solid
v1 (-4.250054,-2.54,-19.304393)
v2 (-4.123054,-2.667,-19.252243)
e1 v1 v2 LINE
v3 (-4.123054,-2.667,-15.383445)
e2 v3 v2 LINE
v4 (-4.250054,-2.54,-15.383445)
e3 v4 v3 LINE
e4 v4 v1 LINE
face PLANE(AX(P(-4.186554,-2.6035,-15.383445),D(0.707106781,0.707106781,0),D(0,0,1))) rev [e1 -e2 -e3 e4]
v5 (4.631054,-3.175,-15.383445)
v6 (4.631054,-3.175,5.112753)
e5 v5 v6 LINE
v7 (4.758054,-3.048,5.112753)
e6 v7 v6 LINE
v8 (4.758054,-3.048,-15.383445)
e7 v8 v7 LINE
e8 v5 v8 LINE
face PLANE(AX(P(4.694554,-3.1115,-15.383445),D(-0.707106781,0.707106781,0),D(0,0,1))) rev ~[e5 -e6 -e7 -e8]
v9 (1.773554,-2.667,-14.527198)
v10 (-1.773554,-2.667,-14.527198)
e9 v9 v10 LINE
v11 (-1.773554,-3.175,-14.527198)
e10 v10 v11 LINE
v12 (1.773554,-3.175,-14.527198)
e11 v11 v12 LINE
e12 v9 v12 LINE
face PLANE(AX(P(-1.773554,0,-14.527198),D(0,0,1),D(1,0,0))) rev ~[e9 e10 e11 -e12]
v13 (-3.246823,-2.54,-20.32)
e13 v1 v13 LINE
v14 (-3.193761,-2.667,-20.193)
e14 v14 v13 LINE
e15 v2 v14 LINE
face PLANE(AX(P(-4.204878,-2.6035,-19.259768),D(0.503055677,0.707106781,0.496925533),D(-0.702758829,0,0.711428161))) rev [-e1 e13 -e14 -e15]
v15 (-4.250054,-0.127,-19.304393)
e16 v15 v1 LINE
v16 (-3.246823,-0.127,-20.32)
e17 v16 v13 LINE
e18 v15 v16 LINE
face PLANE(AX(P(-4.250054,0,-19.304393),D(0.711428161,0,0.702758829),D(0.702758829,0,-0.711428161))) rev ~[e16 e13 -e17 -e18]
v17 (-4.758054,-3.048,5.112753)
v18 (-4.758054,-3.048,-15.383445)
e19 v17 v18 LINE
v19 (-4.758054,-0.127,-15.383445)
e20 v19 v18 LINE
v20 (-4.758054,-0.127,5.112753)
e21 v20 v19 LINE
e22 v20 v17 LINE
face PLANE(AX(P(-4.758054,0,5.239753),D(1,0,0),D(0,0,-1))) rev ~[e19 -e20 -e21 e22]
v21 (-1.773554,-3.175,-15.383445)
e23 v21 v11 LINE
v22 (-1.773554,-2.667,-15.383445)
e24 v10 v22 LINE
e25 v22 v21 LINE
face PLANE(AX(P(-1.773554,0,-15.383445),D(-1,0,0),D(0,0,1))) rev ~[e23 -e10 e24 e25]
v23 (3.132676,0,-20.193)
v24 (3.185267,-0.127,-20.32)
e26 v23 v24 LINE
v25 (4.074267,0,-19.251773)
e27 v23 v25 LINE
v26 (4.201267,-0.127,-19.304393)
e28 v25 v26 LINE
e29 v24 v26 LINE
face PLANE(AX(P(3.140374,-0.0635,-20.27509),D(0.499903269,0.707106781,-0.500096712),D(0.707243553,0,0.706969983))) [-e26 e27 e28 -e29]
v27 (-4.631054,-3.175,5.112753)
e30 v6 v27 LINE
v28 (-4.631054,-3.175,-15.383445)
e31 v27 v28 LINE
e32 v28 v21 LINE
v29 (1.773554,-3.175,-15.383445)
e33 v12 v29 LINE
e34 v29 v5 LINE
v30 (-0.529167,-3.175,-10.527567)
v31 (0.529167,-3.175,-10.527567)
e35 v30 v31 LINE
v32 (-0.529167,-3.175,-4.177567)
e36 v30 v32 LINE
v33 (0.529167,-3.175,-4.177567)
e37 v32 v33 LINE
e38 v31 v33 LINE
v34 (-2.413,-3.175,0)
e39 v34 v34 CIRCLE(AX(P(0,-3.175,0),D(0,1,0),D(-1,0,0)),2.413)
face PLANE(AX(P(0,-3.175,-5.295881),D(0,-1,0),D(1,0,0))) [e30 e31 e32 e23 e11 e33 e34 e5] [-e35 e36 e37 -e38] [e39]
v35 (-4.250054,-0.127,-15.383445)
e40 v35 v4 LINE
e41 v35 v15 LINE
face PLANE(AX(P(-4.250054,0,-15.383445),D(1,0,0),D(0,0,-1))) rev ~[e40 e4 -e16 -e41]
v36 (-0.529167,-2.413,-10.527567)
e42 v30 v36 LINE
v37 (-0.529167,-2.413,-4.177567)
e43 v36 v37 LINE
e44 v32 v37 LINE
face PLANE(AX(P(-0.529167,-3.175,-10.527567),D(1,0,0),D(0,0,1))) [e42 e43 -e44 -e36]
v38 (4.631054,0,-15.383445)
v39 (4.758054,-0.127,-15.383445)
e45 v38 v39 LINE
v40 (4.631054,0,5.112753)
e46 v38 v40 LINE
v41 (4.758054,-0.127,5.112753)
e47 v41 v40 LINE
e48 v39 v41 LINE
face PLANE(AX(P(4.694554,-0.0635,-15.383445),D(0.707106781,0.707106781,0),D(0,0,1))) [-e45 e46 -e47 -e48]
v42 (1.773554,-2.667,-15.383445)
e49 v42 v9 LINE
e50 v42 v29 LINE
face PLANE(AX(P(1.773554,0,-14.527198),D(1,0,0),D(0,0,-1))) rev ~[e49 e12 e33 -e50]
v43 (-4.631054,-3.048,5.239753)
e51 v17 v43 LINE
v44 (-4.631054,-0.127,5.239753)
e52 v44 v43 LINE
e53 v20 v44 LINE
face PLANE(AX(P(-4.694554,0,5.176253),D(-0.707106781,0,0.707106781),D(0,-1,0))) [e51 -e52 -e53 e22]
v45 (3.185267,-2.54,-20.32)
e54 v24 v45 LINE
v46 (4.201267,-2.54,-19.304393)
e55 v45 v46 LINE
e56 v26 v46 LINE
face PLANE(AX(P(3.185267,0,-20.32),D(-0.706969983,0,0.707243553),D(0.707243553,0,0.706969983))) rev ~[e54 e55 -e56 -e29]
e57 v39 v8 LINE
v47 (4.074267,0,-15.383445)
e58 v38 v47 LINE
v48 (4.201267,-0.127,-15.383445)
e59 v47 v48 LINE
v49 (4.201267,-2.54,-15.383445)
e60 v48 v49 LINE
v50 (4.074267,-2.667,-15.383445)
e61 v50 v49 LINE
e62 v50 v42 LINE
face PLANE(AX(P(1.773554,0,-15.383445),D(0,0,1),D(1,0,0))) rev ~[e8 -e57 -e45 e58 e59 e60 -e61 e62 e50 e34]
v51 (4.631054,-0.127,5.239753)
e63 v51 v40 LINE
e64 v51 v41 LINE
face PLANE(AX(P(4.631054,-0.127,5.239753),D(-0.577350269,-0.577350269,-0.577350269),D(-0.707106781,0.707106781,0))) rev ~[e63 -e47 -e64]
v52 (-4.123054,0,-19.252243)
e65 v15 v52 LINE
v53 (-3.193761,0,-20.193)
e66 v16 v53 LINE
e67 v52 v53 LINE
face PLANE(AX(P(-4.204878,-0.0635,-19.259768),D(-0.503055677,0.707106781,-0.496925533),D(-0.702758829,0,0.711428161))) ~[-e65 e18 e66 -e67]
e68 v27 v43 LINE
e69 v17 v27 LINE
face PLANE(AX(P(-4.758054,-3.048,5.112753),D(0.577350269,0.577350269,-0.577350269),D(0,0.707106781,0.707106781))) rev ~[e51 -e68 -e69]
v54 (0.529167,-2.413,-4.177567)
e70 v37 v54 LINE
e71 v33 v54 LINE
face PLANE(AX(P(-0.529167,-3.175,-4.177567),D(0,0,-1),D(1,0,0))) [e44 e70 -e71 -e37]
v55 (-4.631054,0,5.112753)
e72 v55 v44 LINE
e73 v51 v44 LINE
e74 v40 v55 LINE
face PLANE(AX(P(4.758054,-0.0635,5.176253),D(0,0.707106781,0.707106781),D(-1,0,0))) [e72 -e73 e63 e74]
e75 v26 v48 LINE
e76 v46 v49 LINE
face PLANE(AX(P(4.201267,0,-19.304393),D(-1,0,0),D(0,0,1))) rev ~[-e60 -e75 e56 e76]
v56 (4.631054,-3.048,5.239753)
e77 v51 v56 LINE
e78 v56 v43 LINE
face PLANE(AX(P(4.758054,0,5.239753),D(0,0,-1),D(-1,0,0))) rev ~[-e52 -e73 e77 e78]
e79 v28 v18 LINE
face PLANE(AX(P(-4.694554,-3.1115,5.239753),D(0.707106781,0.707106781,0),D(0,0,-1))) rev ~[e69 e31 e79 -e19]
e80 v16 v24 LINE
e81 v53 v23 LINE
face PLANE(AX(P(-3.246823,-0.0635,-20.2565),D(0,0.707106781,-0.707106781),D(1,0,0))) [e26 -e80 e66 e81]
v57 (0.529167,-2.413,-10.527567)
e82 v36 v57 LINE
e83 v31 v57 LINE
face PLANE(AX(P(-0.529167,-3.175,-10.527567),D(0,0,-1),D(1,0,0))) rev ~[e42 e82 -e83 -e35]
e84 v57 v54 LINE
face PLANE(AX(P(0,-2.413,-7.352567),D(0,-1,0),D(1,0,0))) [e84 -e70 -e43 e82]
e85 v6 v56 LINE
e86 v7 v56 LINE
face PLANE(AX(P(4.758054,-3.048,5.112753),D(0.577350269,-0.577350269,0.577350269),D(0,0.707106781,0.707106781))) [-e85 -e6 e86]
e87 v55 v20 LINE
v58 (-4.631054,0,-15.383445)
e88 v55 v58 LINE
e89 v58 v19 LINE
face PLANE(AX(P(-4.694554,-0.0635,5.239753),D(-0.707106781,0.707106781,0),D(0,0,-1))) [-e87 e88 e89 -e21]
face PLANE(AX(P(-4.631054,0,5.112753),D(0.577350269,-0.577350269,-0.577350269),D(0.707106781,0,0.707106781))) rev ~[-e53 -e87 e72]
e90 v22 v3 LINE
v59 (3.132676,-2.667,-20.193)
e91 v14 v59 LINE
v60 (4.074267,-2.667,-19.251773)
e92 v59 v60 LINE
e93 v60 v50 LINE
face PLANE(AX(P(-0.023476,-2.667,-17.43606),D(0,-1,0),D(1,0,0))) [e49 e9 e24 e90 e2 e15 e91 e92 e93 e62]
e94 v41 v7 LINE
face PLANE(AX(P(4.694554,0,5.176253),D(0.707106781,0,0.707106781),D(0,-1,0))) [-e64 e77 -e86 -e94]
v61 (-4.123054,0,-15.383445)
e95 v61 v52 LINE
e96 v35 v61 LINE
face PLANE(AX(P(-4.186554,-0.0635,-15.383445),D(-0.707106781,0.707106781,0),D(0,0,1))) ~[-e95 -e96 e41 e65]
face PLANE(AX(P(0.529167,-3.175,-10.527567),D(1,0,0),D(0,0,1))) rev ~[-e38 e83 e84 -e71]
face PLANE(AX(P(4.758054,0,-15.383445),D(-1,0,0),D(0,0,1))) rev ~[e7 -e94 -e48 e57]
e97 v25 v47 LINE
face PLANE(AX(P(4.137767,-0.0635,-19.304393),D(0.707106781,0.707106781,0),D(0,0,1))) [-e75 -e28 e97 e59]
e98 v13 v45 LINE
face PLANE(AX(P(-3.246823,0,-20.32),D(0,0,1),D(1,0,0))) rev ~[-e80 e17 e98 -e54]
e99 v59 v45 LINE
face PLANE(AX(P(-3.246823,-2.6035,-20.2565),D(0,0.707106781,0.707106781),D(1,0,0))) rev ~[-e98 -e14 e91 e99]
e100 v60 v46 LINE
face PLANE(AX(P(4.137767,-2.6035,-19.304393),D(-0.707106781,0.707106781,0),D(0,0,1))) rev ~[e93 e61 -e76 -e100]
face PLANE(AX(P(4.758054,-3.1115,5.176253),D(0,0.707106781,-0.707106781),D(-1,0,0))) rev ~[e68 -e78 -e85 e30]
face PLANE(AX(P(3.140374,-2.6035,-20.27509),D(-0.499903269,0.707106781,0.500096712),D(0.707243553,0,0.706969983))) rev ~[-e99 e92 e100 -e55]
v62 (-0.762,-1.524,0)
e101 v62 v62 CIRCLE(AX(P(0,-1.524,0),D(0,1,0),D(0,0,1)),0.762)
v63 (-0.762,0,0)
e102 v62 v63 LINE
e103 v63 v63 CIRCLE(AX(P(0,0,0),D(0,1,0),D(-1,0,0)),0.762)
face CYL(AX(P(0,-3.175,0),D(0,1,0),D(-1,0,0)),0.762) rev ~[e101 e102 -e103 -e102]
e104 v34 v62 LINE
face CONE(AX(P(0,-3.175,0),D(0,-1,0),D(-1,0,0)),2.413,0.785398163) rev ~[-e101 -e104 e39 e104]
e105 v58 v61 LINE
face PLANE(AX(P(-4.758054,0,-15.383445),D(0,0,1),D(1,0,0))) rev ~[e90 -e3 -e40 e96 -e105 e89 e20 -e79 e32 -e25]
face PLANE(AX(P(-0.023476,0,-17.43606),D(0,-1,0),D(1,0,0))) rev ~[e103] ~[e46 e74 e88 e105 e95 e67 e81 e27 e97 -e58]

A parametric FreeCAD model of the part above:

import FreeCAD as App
import Part
import Sketcher

V = App.Vector
Q = App.Units.Quantity


def edges_at(feature, points):
    """Names of the edges that pass closest to the given points."""
    edges = feature.Shape.Edges
    near = lambda p: min(range(len(edges)), key=lambda i: edges[i].distToShape(Part.Vertex(*p))[0])
    return sorted({f"Edge{near(p) + 1}" for p in points})


def add_polygon(sketch, points):
    """Adds a closed chain of lines whose ends are joined by coincident constraints."""
    first, n = sketch.GeometryCount, len(points)
    for a, b in zip(points, points[1:] + points[:1]):
        sketch.addGeometry(Part.LineSegment(App.Vector(*a, 0), App.Vector(*b, 0)), False)
    for i in range(n):
        sketch.addConstraint(Sketcher.Constraint("Coincident", first + i, 2, first + (i + 1) % n, 1))

doc = App.newDocument("Part")
body = doc.addObject("PartDesign::Body", "Body")

# Sketch on XZ plane
sketch1 = body.newObject("Sketcher::SketchObject", "Sketch")
sketch1.AttachmentSupport = (doc.getObject("XZ_Plane"), [""])
sketch1.MapMode = "FlatFace"
add_polygon(sketch1, [(4.758054, 5.239753), (-4.758054, 5.239753), (-4.758054, -15.383445), (-1.773554, -15.383445), (-1.773554, -14.527198), (1.773554, -14.527198), (1.773554, -15.383445), (4.758054, -15.383445)])  # lines 0-7
sketch1.addConstraint([
    Sketcher.Constraint("Horizontal", 0),
    Sketcher.Constraint("Vertical", 1),
    Sketcher.Constraint("Horizontal", 2),
    Sketcher.Constraint("Vertical", 3),
    Sketcher.Constraint("Horizontal", 4),
    Sketcher.Constraint("Vertical", 5),
    Sketcher.Constraint("Horizontal", 6),
    Sketcher.Constraint("Vertical", 7),
    Sketcher.Constraint("Symmetric", 2, 2, 5, 2, -2),
    Sketcher.Constraint("Equal", 2, 6),
    Sketcher.Constraint("DistanceX", 2, 1, 2, 2, Q("0.1175 in")),
    Sketcher.Constraint("DistanceY", 1, 2, 1, 1, Q("20.623198 mm")),
    Sketcher.Constraint("DistanceX", 4, 1, 4, 2, Q("3.547108 mm")),
    Sketcher.Constraint("DistanceY", 3, 1, 3, 2, Q("0.856247 mm")),
    Sketcher.Constraint("DistanceY", -1, 1, 0, 2, Q("5.239753 mm")),
])
pad1 = body.newObject("PartDesign::Pad", "Pad")
pad1.Profile = sketch1
pad1.Length = Q("0.125 in")

# Sketch on XZ plane
sketch2 = body.newObject("Sketcher::SketchObject", "Sketch001")
sketch2.AttachmentSupport = (doc.getObject("XZ_Plane"), [""])
sketch2.MapMode = "FlatFace"
add_polygon(sketch2, [(-1.773554, -15.383445), (-4.250054, -15.383445), (-4.250054, -19.304393), (-3.246823, -20.32), (3.185267, -20.32), (4.201267, -19.304393), (4.201267, -15.383445), (1.773554, -15.383445), (1.773554, -14.527198), (-1.773554, -14.527198)])  # lines 0-9
sketch2.addConstraint([
    Sketcher.Constraint("Horizontal", 0),
    Sketcher.Constraint("Vertical", 1),
    Sketcher.Constraint("Horizontal", 3),
    Sketcher.Constraint("Vertical", 5),
    Sketcher.Constraint("Horizontal", 6),
    Sketcher.Constraint("Vertical", 7),
    Sketcher.Constraint("Horizontal", 8),
    Sketcher.Constraint("Vertical", 9),
    Sketcher.Constraint("Symmetric", 6, 2, 9, 2, -2),
    Sketcher.Constraint("Horizontal", 1, 2, 4, 2),
    Sketcher.Constraint("DistanceY", 2, 2, -1, 1, Q("0.8 in")),
    Sketcher.Constraint("DistanceX", 3, 2, 4, 2, Q("0.04 in")),
    Sketcher.Constraint("DistanceX", 0, 2, 0, 1, Q("0.0975 in")),
    Sketcher.Constraint("DistanceX", 3, 1, 3, 2, Q("6.43209 mm")),
    Sketcher.Constraint("DistanceX", 8, 2, 8, 1, Q("3.547108 mm")),
    Sketcher.Constraint("DistanceY", 1, 2, 1, 1, Q("3.920948 mm")),
    Sketcher.Constraint("Distance", 2, Q("1.427561 mm")),
    Sketcher.Constraint("DistanceX", 6, 2, 6, 1, Q("2.427713 mm")),
    Sketcher.Constraint("DistanceY", 7, 1, 7, 2, Q("0.856247 mm")),
])
pad2 = body.newObject("PartDesign::Pad", "Pad001")
pad2.Profile = sketch2
pad2.Length = Q("0.105 in")
doc.recompute()

chamfer = body.newObject("PartDesign::Chamfer", "Chamfer")
chamfer.Base = (pad2, edges_at(pad2, [
    (0, -3.175, 5.24),
    (-4.758, -3.175, -5.072),
    (-4.758, -1.587, 5.24),
    (-4.758, 0, -5.072),
    (4.758, -3.175, -5.072),
    (4.758, 0, -5.072),
    (4.758, -1.587, 5.24),
    (0, 0, 5.24),
    (-4.25, -2.667, -17.344),
    (4.201, -2.667, -17.344),
    (4.201, 0, -17.344),
    (-4.25, 0, -17.344),
    (3.693, -2.667, -19.812),
    (-0.031, -2.667, -20.32),
    (-3.748, -2.667, -19.812),
    (-3.748, 0, -19.812),
    (-0.031, 0, -20.32),
    (3.693, 0, -19.812),
]))
chamfer.Size = Q("0.005 in")

# Sketch on XZ plane
sketch3 = body.newObject("Sketcher::SketchObject", "Sketch002")
sketch3.AttachmentSupport = (doc.getObject("XZ_Plane"), [""])
sketch3.MapMode = "FlatFace"
sketch3.AttachmentOffset = App.Placement(V(0, 0, 0.125 * 25.4), App.Rotation())
sketch3.addGeometry(Part.Circle(V(0, 0, 0), V(0, 0, 1), 0.762), False)
sketch3.addConstraint([
    Sketcher.Constraint("Coincident", 0, 3, -1, 1),
    Sketcher.Constraint("Diameter", 0, Q("0.06 in")),
])
doc.recompute()
hole = body.newObject("PartDesign::Hole", "Hole")
hole.Profile = sketch3
hole.ThreadType = "None"
hole.Diameter = Q("0.06 in")
hole.DepthType = "ThroughAll"
hole.HoleCutType = "Countersink"
hole.HoleCutDiameter = Q("0.19 in")
hole.HoleCutCountersinkAngle = 90

# Sketch on XZ plane
sketch4 = body.newObject("Sketcher::SketchObject", "Sketch003")
sketch4.AttachmentSupport = (doc.getObject("XZ_Plane"), [""])
sketch4.MapMode = "FlatFace"
sketch4.AttachmentOffset = App.Placement(V(0, 0, 0.125 * 25.4), App.Rotation())
add_polygon(sketch4, [(-0.529167, -4.177567), (-0.529167, -10.527567), (0.529167, -10.527567), (0.529167, -4.177567)])  # lines 0-3
sketch4.addConstraint([
    Sketcher.Constraint("Vertical", 0),
    Sketcher.Constraint("Horizontal", 1),
    Sketcher.Constraint("Vertical", 2),
    Sketcher.Constraint("Horizontal", 3),
    Sketcher.Constraint("DistanceY", 0, 2, 0, 1, Q("0.25 in")),
    Sketcher.Constraint("DistanceX", 1, 1, 1, 2, Q("1.058334 mm")),
    Sketcher.Constraint("DistanceX", 0, 2, -1, 1, Q("0.529167 mm")),
    Sketcher.Constraint("DistanceY", 0, 2, -1, 1, Q("10.527567 mm")),
])
pocket1 = body.newObject("PartDesign::Pocket", "Pocket")
pocket1.Profile = sketch4
pocket1.Length = Q("0.03 in")

doc.recompute()
